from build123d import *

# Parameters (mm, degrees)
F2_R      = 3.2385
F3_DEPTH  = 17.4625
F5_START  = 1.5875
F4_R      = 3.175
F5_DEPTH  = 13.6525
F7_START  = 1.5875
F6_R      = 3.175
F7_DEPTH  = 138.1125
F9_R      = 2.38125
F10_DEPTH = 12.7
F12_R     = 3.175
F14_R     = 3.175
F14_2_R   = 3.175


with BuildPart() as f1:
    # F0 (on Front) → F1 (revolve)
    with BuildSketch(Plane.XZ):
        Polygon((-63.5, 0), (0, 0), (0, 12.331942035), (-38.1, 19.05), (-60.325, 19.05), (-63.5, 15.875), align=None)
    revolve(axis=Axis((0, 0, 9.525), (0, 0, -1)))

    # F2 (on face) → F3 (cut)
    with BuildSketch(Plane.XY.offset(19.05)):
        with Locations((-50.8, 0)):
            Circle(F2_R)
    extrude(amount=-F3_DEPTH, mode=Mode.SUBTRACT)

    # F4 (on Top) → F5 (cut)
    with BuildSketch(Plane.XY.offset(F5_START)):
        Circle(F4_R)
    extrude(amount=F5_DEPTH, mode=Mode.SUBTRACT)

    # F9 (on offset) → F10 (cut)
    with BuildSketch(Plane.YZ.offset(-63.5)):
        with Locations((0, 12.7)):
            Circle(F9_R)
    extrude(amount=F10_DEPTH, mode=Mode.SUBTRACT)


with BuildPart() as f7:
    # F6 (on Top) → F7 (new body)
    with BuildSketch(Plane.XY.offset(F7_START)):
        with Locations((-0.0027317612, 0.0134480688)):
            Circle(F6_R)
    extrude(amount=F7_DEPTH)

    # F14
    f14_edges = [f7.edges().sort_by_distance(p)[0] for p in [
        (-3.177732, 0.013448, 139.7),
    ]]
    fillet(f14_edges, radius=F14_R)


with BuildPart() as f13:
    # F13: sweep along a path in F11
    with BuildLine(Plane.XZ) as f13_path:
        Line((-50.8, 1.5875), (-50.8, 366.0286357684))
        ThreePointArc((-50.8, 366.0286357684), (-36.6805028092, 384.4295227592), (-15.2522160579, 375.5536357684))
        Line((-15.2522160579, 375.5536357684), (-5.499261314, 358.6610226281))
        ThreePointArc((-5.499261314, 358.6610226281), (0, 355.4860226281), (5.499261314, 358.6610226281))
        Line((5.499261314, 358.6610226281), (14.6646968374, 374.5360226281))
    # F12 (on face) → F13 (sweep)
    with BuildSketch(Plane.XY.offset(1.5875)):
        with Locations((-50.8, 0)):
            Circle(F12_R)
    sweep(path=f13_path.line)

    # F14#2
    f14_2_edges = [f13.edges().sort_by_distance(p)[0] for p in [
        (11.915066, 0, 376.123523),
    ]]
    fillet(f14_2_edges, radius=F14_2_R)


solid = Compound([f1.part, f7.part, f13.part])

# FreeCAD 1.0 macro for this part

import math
import FreeCAD as App
import Part
import Sketcher
from FreeCAD import Vector
Q = App.Units.Quantity


def edges_at(feature, points):
    """Names of the edges that pass closest to the given points."""
    edges = feature.Shape.Edges
    near = lambda p: min(range(len(edges)), key=lambda i: edges[i].distToShape(Part.Vertex(*p))[0])
    return sorted({f"Edge{near(p) + 1}" for p in points})


def add_polygon(sketch, points):
    """Adds a closed chain of lines whose ends are joined by coincident constraints."""
    first, n = sketch.GeometryCount, len(points)
    for a, b in zip(points, points[1:] + points[:1]):
        sketch.addGeometry(Part.LineSegment(App.Vector(*a, 0), App.Vector(*b, 0)), False)
    for i in range(n):
        sketch.addConstraint(Sketcher.Constraint("Coincident", first + i, 2, first + (i + 1) % n, 1))

doc = App.newDocument("Part")
body = doc.addObject("PartDesign::Body", "Body")

# Sketch on XZ plane
sketch1 = body.newObject("Sketcher::SketchObject", "Sketch")
sketch1.AttachmentSupport = (doc.getObject("XZ_Plane"), [""])
sketch1.MapMode = "FlatFace"
add_polygon(sketch1, [(-63.5, 0), (0, 0), (0, 12.3), (-38.1, 19.1), (-60.3, 19.1), (-63.5, 15.9)])  # lines 0-5
sketch1.addConstraint([
    Sketcher.Constraint("Horizontal", 0),
    Sketcher.Constraint("Vertical", 1),
    Sketcher.Constraint("Horizontal", 3),
    Sketcher.Constraint("Vertical", 5),
    Sketcher.Constraint("Coincident", 0, 2, -1, 1),
    Sketcher.Constraint("DistanceX", 0, 1, 0, 2, Q("2.5 in")),
    Sketcher.Constraint("Angle", 2, Q("170 deg")),
    Sketcher.Constraint("Angle", 4, Q("-135 deg")),
    Sketcher.Constraint("DistanceX", 4, 2, 2, 2, Q("1 in")),
    Sketcher.Constraint("DistanceX", 3, 2, 3, 1, Q("0.875 in")),
    Sketcher.Constraint("DistanceY", 5, 2, 5, 1, Q("0.625 in")),
])
revolution = body.newObject("PartDesign::Revolution", "Revolution")
revolution.Profile = sketch1
revolution.ReferenceAxis = (sketch1, ["V_Axis"])
revolution.Angle = 360

# Sketch on XY plane
sketch2 = body.newObject("Sketcher::SketchObject", "Sketch001")
sketch2.AttachmentSupport = (doc.getObject("XY_Plane"), [""])
sketch2.MapMode = "FlatFace"
sketch2.AttachmentOffset = App.Placement(Vector(0, 0, 0.75 * 25.4), App.Rotation())
sketch2.addGeometry(Part.Circle(Vector(-50.8, 0, 0), Vector(0, 0, 1), 3.2), False)
sketch2.addConstraint([
    Sketcher.Constraint("PointOnObject", 0, 3, -1),
    Sketcher.Constraint("Diameter", 0, Q("0.255 in")),
    Sketcher.Constraint("DistanceX", 0, 3, -1, 1, Q("2 in")),
])
pocket1 = body.newObject("PartDesign::Pocket", "Pocket")
pocket1.Profile = sketch2
pocket1.Length = Q("0.6875 in")

# Sketch on XY plane
sketch3 = body.newObject("Sketcher::SketchObject", "Sketch002")
sketch3.AttachmentSupport = (doc.getObject("XY_Plane"), [""])
sketch3.MapMode = "FlatFace"
sketch3.AttachmentOffset = App.Placement(Vector(0, 0, 0.0625 * 25.4), App.Rotation())
sketch3.addGeometry(Part.Circle(Vector(0, 0, 0), Vector(0, 0, 1), 3.2), False)
sketch3.addConstraint([
    Sketcher.Constraint("Coincident", 0, 3, -1, 1),
    Sketcher.Constraint("Diameter", 0, Q("0.25 in")),
])
pocket2 = body.newObject("PartDesign::Pocket", "Pocket001")
pocket2.Profile = sketch3
pocket2.Length = Q("0.5375 in")
pocket2.Reversed = True

# Sketch on YZ plane
sketch4 = body.newObject("Sketcher::SketchObject", "Sketch003")
sketch4.AttachmentSupport = (doc.getObject("YZ_Plane"), [""])
sketch4.MapMode = "FlatFace"
sketch4.AttachmentOffset = App.Placement(Vector(0, 0, -2.5 * 25.4), App.Rotation())
sketch4.addGeometry(Part.Circle(Vector(0, 12.7, 0), Vector(0, 0, 1), 2.4), False)
sketch4.addConstraint([
    Sketcher.Constraint("PointOnObject", 0, 3, -2),
    Sketcher.Constraint("Diameter", 0, Q("0.1875 in")),
    Sketcher.Constraint("DistanceY", -1, 1, 0, 3, Q("0.5 in")),
])
pocket3 = body.newObject("PartDesign::Pocket", "Pocket002")
pocket3.Profile = sketch4
pocket3.Length = Q("0.5 in")
pocket3.Reversed = True
body2 = doc.addObject("PartDesign::Body", "Body001")

# Sketch on XY plane
sketch5 = body2.newObject("Sketcher::SketchObject", "Sketch004")
sketch5.AttachmentSupport = (doc.getObject("XY_Plane001"), [""])
sketch5.MapMode = "FlatFace"
sketch5.AttachmentOffset = App.Placement(Vector(0, 0, 0.0625 * 25.4), App.Rotation())
sketch5.addGeometry(Part.Circle(Vector(0, 0, 0), Vector(0, 0, 1), 3.2), False)
sketch5.addConstraint([
    Sketcher.Constraint("Diameter", 0, Q("0.25 in")),
    Sketcher.Constraint("DistanceX", 0, 3, -1, 1, 0.002732),
    Sketcher.Constraint("DistanceY", -1, 1, 0, 3, 0.013448),
])
pad1 = body2.newObject("PartDesign::Pad", "Pad")
pad1.Profile = sketch5
pad1.Length = Q("5.4375 in")
doc.recompute()

fillet = body2.newObject("PartDesign::Fillet", "Fillet")
fillet.Base = (pad1, edges_at(pad1, [(-3.178, 0.013, 139.7)]))
fillet.Radius = Q("0.125 in")
body3 = doc.addObject("PartDesign::Body", "Body002")

# Sketch on XY plane
sketch6 = body3.newObject("Sketcher::SketchObject", "Sketch005")
sketch6.AttachmentSupport = (doc.getObject("XY_Plane002"), [""])
sketch6.MapMode = "FlatFace"
sketch6.AttachmentOffset = App.Placement(Vector(0, 0, 0.0625 * 25.4), App.Rotation())
sketch6.addGeometry(Part.Circle(Vector(-50.8, 0, 0), Vector(0, 0, 1), 3.2), False)
sketch6.addConstraint([
    Sketcher.Constraint("PointOnObject", 0, 3, -1),
    Sketcher.Constraint("Diameter", 0, Q("0.25 in")),
    Sketcher.Constraint("DistanceX", 0, 3, -1, 1, Q("2 in")),
])

# Sketch on XZ plane
sketch7 = body3.newObject("Sketcher::SketchObject", "Sketch006")
sketch7.AttachmentSupport = (doc.getObject("XZ_Plane002"), [""])
sketch7.MapMode = "FlatFace"
sketch7.addGeometry([
    Part.LineSegment(Vector(-51, 2, 0), Vector(-51, 366, 0)),  # 0
    Part.ArcOfCircle(Part.Circle(Vector(-32, 366, 0), Vector(0, 0, 1), 19), math.radians(30), math.radians(180)),  # 1
    Part.LineSegment(Vector(-15, 376, 0), Vector(-5, 359, 0)),  # 2
    Part.ArcOfCircle(Part.Circle(Vector(0, 362, 0), Vector(0, 0, 1), 6), math.radians(-150), math.radians(-30)),  # 3
    Part.LineSegment(Vector(5, 359, 0), Vector(15, 375, 0)),  # 4
], False)
sketch7.addConstraint([
    Sketcher.Constraint("Tangent", 0, 2, 1, 2),
    Sketcher.Constraint("Tangent", 1, 1, 2, 1),
    Sketcher.Constraint("Tangent", 2, 2, 3, 1),
    Sketcher.Constraint("Tangent", 3, 2, 4, 1),
    Sketcher.Constraint("Vertical", 0),
    Sketcher.Constraint("Symmetric", 2, 2, 3, 2, -2),
    Sketcher.Constraint("Radius", 1, Q("0.75 in")),
    Sketcher.Constraint("Radius", 3, Q("0.25 in")),
    Sketcher.Constraint("DistanceX", 0, 1, -1, 1, Q("2 in")),
    Sketcher.Constraint("Angle", 2, Q("-60 deg")),
    Sketcher.Constraint("DistanceY", 3, 3, 4, 2, Q("0.5 in")),
    Sketcher.Constraint("DistanceY", -1, 1, 0, 1, Q("0.0625 in")),
    Sketcher.Constraint("DistanceY", 0, 1, 0, 2, 364.441136),
])
doc.recompute()

additivepipe = body3.newObject("PartDesign::AdditivePipe", "AdditivePipe")
additivepipe.Profile = sketch6
additivepipe.Spine = (sketch7, ["Edge1", "Edge2", "Edge3", "Edge4", "Edge5"])
doc.recompute()

fillet2 = body3.newObject("PartDesign::Fillet", "Fillet001")
fillet2.Base = (additivepipe, edges_at(additivepipe, [(11.915, 0, 376.124)]))
fillet2.Radius = Q("0.125 in")

doc.recompute()
